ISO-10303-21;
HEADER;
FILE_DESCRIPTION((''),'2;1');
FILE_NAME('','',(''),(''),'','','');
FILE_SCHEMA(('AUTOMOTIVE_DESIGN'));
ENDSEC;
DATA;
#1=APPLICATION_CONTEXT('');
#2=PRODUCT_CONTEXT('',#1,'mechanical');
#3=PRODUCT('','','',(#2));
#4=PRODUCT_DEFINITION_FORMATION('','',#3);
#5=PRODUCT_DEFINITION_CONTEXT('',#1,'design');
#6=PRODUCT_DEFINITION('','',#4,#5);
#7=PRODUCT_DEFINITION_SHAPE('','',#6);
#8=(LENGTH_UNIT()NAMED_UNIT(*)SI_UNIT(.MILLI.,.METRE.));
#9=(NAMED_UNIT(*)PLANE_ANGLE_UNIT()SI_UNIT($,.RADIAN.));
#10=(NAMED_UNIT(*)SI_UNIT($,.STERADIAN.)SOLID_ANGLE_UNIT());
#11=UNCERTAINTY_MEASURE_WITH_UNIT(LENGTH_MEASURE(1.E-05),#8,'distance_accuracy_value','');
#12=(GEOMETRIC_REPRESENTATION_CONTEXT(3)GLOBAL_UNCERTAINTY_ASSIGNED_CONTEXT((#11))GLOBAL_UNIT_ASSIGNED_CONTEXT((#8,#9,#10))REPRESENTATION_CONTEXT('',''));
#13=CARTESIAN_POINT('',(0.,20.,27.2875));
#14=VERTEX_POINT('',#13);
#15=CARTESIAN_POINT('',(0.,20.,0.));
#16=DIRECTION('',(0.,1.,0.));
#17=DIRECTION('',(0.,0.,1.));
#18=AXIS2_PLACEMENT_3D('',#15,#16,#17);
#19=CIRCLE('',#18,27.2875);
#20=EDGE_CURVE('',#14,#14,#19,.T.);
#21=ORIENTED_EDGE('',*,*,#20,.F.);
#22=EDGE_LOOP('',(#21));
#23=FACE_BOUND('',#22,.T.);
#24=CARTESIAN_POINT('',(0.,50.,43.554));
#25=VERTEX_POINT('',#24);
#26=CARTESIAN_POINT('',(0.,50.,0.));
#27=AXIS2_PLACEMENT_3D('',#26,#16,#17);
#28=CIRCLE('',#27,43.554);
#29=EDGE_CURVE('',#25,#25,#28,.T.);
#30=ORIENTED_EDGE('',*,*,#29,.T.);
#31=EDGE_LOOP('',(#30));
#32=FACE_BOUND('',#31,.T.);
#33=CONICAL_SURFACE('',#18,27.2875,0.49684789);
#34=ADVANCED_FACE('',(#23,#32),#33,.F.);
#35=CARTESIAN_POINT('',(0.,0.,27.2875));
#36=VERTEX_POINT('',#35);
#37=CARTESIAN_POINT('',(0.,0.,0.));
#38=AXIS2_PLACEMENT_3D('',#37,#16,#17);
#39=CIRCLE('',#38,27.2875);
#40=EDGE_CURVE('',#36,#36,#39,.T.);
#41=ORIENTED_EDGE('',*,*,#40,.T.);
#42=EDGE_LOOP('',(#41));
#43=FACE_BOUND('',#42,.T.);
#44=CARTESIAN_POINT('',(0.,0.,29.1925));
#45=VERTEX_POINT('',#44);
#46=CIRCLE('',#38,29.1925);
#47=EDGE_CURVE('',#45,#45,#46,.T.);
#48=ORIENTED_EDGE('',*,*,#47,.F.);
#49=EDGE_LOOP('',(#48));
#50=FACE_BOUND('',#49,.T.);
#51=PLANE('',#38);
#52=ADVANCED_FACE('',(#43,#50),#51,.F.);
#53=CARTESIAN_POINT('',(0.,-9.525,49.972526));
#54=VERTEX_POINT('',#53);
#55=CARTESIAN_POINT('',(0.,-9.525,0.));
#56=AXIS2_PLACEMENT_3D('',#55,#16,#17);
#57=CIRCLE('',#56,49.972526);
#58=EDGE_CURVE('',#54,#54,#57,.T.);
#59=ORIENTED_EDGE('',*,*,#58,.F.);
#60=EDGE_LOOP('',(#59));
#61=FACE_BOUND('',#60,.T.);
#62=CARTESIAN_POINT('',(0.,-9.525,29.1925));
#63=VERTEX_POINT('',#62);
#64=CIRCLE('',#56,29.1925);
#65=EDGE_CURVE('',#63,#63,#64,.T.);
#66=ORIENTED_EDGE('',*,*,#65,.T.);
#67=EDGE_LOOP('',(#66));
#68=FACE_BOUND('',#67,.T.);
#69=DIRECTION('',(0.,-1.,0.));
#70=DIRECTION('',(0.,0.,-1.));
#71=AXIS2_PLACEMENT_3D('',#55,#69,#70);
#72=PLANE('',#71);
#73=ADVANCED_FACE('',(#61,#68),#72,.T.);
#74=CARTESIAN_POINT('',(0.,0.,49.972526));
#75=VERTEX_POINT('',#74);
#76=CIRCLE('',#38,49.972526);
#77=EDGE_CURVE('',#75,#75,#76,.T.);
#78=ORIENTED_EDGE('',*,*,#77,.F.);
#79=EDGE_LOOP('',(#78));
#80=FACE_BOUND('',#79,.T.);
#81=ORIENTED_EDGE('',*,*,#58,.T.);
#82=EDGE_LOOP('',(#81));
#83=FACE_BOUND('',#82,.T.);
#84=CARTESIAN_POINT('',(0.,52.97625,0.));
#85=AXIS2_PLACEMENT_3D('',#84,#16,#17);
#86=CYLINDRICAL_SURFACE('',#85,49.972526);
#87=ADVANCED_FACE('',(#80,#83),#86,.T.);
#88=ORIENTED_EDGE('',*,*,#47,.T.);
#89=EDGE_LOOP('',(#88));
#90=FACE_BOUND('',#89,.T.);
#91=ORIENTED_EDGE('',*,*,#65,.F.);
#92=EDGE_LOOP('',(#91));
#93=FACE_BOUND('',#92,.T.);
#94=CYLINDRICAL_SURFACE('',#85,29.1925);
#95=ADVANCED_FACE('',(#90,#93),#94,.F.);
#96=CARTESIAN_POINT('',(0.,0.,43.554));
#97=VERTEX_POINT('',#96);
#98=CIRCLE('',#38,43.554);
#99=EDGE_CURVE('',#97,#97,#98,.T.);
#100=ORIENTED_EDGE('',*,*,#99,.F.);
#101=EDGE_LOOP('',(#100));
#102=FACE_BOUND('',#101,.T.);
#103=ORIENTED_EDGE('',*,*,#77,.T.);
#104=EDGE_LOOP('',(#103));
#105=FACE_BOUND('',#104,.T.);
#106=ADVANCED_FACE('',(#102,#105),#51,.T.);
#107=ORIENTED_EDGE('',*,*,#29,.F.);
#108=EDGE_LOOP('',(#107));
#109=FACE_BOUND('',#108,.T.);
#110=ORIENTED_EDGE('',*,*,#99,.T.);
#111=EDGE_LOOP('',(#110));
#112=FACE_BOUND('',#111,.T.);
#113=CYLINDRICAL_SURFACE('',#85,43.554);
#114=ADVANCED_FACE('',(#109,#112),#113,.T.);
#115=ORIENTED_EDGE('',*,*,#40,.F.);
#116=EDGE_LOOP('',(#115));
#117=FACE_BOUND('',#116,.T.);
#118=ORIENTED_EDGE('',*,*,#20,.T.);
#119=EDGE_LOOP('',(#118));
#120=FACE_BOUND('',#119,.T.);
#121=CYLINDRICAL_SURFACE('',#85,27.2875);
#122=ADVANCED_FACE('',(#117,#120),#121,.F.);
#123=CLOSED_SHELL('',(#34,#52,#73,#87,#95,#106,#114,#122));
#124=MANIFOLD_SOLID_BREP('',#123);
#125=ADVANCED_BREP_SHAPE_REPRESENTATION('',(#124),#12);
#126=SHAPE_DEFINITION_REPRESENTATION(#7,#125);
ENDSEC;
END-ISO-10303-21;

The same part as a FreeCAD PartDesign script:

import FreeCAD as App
import Part
import Sketcher
from FreeCAD import Vector


def add_polygon(sketch, points):
    """Adds a closed chain of lines whose ends are joined by coincident constraints."""
    first, n = sketch.GeometryCount, len(points)
    for a, b in zip(points, points[1:] + points[:1]):
        sketch.addGeometry(Part.LineSegment(App.Vector(*a, 0), App.Vector(*b, 0)), False)
    for i in range(n):
        sketch.addConstraint(Sketcher.Constraint("Coincident", first + i, 2, first + (i + 1) % n, 1))

doc = App.newDocument("Part")
params = doc.addObject("Spreadsheet::Sheet", "Params")
for row, (alias, value) in enumerate([
    ("sketch1_height", "20 mm"),
    ("sketch1_height2", "50 mm"),
    ("revolution_angle", "360 deg"),
], start=1):
    params.set(f"A{row}", alias)
    params.set(f"B{row}", "=" + value)
    params.setAlias(f"B{row}", alias)

body = doc.addObject("PartDesign::Body", "Body")

# Sketch on XY plane
sketch1 = body.newObject("Sketcher::SketchObject", "Sketch")
sketch1.AttachmentSupport = (doc.getObject("XY_Plane"), [""])
sketch1.MapMode = "FlatFace"
add_polygon(sketch1, [(-29.2, 0), (-27.3, 0), (-27.3, 20), (-43.6, 50), (-43.6, 0), (-50, 0), (-50, -9.5), (-29.2, -9.5)])  # lines 0-7
sketch1.addConstraint(Sketcher.Constraint("Horizontal", 0))
sketch1.addConstraint(Sketcher.Constraint("Vertical", 1))
sketch1.addConstraint(Sketcher.Constraint("Vertical", 3))
sketch1.addConstraint(Sketcher.Constraint("Horizontal", 4))
sketch1.addConstraint(Sketcher.Constraint("Vertical", 5))
sketch1.addConstraint(Sketcher.Constraint("Horizontal", 6))
sketch1.addConstraint(Sketcher.Constraint("Vertical", 7))
sketch1.addConstraint(Sketcher.Constraint("PointOnObject", 0, 2, -1))
sketch1.addConstraint(Sketcher.Constraint("PointOnObject", 3, 2, -1))
sketch1.addConstraint(Sketcher.Constraint("DistanceY", 1, 1, 1, 2, 20.0))
sketch1.addConstraint(Sketcher.Constraint("DistanceY", 3, 2, 3, 1, 50.0))
sketch1.addConstraint(Sketcher.Constraint("DistanceX", 0, 1, 0, 2, 1.905))
sketch1.addConstraint(Sketcher.Constraint("DistanceY", 5, 2, 5, 1, 9.525))
sketch1.addConstraint(Sketcher.Constraint("DistanceX", 2, 2, -1, 1, 43.554))
sketch1.addConstraint(Sketcher.Constraint("DistanceX", 0, 2, -1, 1, 27.2875))
sketch1.addConstraint(Sketcher.Constraint("DistanceX", 4, 2, 4, 1, 6.418526))
sketch1.setExpression("Constraints[17]", "Params.sketch1_height")
sketch1.setExpression("Constraints[18]", "Params.sketch1_height2")
revolution = body.newObject("PartDesign::Revolution", "Revolution")
revolution.Profile = sketch1
revolution.ReferenceAxis = (sketch1, ["V_Axis"])
revolution.setExpression("Angle", "Params.revolution_angle")

doc.recompute()
